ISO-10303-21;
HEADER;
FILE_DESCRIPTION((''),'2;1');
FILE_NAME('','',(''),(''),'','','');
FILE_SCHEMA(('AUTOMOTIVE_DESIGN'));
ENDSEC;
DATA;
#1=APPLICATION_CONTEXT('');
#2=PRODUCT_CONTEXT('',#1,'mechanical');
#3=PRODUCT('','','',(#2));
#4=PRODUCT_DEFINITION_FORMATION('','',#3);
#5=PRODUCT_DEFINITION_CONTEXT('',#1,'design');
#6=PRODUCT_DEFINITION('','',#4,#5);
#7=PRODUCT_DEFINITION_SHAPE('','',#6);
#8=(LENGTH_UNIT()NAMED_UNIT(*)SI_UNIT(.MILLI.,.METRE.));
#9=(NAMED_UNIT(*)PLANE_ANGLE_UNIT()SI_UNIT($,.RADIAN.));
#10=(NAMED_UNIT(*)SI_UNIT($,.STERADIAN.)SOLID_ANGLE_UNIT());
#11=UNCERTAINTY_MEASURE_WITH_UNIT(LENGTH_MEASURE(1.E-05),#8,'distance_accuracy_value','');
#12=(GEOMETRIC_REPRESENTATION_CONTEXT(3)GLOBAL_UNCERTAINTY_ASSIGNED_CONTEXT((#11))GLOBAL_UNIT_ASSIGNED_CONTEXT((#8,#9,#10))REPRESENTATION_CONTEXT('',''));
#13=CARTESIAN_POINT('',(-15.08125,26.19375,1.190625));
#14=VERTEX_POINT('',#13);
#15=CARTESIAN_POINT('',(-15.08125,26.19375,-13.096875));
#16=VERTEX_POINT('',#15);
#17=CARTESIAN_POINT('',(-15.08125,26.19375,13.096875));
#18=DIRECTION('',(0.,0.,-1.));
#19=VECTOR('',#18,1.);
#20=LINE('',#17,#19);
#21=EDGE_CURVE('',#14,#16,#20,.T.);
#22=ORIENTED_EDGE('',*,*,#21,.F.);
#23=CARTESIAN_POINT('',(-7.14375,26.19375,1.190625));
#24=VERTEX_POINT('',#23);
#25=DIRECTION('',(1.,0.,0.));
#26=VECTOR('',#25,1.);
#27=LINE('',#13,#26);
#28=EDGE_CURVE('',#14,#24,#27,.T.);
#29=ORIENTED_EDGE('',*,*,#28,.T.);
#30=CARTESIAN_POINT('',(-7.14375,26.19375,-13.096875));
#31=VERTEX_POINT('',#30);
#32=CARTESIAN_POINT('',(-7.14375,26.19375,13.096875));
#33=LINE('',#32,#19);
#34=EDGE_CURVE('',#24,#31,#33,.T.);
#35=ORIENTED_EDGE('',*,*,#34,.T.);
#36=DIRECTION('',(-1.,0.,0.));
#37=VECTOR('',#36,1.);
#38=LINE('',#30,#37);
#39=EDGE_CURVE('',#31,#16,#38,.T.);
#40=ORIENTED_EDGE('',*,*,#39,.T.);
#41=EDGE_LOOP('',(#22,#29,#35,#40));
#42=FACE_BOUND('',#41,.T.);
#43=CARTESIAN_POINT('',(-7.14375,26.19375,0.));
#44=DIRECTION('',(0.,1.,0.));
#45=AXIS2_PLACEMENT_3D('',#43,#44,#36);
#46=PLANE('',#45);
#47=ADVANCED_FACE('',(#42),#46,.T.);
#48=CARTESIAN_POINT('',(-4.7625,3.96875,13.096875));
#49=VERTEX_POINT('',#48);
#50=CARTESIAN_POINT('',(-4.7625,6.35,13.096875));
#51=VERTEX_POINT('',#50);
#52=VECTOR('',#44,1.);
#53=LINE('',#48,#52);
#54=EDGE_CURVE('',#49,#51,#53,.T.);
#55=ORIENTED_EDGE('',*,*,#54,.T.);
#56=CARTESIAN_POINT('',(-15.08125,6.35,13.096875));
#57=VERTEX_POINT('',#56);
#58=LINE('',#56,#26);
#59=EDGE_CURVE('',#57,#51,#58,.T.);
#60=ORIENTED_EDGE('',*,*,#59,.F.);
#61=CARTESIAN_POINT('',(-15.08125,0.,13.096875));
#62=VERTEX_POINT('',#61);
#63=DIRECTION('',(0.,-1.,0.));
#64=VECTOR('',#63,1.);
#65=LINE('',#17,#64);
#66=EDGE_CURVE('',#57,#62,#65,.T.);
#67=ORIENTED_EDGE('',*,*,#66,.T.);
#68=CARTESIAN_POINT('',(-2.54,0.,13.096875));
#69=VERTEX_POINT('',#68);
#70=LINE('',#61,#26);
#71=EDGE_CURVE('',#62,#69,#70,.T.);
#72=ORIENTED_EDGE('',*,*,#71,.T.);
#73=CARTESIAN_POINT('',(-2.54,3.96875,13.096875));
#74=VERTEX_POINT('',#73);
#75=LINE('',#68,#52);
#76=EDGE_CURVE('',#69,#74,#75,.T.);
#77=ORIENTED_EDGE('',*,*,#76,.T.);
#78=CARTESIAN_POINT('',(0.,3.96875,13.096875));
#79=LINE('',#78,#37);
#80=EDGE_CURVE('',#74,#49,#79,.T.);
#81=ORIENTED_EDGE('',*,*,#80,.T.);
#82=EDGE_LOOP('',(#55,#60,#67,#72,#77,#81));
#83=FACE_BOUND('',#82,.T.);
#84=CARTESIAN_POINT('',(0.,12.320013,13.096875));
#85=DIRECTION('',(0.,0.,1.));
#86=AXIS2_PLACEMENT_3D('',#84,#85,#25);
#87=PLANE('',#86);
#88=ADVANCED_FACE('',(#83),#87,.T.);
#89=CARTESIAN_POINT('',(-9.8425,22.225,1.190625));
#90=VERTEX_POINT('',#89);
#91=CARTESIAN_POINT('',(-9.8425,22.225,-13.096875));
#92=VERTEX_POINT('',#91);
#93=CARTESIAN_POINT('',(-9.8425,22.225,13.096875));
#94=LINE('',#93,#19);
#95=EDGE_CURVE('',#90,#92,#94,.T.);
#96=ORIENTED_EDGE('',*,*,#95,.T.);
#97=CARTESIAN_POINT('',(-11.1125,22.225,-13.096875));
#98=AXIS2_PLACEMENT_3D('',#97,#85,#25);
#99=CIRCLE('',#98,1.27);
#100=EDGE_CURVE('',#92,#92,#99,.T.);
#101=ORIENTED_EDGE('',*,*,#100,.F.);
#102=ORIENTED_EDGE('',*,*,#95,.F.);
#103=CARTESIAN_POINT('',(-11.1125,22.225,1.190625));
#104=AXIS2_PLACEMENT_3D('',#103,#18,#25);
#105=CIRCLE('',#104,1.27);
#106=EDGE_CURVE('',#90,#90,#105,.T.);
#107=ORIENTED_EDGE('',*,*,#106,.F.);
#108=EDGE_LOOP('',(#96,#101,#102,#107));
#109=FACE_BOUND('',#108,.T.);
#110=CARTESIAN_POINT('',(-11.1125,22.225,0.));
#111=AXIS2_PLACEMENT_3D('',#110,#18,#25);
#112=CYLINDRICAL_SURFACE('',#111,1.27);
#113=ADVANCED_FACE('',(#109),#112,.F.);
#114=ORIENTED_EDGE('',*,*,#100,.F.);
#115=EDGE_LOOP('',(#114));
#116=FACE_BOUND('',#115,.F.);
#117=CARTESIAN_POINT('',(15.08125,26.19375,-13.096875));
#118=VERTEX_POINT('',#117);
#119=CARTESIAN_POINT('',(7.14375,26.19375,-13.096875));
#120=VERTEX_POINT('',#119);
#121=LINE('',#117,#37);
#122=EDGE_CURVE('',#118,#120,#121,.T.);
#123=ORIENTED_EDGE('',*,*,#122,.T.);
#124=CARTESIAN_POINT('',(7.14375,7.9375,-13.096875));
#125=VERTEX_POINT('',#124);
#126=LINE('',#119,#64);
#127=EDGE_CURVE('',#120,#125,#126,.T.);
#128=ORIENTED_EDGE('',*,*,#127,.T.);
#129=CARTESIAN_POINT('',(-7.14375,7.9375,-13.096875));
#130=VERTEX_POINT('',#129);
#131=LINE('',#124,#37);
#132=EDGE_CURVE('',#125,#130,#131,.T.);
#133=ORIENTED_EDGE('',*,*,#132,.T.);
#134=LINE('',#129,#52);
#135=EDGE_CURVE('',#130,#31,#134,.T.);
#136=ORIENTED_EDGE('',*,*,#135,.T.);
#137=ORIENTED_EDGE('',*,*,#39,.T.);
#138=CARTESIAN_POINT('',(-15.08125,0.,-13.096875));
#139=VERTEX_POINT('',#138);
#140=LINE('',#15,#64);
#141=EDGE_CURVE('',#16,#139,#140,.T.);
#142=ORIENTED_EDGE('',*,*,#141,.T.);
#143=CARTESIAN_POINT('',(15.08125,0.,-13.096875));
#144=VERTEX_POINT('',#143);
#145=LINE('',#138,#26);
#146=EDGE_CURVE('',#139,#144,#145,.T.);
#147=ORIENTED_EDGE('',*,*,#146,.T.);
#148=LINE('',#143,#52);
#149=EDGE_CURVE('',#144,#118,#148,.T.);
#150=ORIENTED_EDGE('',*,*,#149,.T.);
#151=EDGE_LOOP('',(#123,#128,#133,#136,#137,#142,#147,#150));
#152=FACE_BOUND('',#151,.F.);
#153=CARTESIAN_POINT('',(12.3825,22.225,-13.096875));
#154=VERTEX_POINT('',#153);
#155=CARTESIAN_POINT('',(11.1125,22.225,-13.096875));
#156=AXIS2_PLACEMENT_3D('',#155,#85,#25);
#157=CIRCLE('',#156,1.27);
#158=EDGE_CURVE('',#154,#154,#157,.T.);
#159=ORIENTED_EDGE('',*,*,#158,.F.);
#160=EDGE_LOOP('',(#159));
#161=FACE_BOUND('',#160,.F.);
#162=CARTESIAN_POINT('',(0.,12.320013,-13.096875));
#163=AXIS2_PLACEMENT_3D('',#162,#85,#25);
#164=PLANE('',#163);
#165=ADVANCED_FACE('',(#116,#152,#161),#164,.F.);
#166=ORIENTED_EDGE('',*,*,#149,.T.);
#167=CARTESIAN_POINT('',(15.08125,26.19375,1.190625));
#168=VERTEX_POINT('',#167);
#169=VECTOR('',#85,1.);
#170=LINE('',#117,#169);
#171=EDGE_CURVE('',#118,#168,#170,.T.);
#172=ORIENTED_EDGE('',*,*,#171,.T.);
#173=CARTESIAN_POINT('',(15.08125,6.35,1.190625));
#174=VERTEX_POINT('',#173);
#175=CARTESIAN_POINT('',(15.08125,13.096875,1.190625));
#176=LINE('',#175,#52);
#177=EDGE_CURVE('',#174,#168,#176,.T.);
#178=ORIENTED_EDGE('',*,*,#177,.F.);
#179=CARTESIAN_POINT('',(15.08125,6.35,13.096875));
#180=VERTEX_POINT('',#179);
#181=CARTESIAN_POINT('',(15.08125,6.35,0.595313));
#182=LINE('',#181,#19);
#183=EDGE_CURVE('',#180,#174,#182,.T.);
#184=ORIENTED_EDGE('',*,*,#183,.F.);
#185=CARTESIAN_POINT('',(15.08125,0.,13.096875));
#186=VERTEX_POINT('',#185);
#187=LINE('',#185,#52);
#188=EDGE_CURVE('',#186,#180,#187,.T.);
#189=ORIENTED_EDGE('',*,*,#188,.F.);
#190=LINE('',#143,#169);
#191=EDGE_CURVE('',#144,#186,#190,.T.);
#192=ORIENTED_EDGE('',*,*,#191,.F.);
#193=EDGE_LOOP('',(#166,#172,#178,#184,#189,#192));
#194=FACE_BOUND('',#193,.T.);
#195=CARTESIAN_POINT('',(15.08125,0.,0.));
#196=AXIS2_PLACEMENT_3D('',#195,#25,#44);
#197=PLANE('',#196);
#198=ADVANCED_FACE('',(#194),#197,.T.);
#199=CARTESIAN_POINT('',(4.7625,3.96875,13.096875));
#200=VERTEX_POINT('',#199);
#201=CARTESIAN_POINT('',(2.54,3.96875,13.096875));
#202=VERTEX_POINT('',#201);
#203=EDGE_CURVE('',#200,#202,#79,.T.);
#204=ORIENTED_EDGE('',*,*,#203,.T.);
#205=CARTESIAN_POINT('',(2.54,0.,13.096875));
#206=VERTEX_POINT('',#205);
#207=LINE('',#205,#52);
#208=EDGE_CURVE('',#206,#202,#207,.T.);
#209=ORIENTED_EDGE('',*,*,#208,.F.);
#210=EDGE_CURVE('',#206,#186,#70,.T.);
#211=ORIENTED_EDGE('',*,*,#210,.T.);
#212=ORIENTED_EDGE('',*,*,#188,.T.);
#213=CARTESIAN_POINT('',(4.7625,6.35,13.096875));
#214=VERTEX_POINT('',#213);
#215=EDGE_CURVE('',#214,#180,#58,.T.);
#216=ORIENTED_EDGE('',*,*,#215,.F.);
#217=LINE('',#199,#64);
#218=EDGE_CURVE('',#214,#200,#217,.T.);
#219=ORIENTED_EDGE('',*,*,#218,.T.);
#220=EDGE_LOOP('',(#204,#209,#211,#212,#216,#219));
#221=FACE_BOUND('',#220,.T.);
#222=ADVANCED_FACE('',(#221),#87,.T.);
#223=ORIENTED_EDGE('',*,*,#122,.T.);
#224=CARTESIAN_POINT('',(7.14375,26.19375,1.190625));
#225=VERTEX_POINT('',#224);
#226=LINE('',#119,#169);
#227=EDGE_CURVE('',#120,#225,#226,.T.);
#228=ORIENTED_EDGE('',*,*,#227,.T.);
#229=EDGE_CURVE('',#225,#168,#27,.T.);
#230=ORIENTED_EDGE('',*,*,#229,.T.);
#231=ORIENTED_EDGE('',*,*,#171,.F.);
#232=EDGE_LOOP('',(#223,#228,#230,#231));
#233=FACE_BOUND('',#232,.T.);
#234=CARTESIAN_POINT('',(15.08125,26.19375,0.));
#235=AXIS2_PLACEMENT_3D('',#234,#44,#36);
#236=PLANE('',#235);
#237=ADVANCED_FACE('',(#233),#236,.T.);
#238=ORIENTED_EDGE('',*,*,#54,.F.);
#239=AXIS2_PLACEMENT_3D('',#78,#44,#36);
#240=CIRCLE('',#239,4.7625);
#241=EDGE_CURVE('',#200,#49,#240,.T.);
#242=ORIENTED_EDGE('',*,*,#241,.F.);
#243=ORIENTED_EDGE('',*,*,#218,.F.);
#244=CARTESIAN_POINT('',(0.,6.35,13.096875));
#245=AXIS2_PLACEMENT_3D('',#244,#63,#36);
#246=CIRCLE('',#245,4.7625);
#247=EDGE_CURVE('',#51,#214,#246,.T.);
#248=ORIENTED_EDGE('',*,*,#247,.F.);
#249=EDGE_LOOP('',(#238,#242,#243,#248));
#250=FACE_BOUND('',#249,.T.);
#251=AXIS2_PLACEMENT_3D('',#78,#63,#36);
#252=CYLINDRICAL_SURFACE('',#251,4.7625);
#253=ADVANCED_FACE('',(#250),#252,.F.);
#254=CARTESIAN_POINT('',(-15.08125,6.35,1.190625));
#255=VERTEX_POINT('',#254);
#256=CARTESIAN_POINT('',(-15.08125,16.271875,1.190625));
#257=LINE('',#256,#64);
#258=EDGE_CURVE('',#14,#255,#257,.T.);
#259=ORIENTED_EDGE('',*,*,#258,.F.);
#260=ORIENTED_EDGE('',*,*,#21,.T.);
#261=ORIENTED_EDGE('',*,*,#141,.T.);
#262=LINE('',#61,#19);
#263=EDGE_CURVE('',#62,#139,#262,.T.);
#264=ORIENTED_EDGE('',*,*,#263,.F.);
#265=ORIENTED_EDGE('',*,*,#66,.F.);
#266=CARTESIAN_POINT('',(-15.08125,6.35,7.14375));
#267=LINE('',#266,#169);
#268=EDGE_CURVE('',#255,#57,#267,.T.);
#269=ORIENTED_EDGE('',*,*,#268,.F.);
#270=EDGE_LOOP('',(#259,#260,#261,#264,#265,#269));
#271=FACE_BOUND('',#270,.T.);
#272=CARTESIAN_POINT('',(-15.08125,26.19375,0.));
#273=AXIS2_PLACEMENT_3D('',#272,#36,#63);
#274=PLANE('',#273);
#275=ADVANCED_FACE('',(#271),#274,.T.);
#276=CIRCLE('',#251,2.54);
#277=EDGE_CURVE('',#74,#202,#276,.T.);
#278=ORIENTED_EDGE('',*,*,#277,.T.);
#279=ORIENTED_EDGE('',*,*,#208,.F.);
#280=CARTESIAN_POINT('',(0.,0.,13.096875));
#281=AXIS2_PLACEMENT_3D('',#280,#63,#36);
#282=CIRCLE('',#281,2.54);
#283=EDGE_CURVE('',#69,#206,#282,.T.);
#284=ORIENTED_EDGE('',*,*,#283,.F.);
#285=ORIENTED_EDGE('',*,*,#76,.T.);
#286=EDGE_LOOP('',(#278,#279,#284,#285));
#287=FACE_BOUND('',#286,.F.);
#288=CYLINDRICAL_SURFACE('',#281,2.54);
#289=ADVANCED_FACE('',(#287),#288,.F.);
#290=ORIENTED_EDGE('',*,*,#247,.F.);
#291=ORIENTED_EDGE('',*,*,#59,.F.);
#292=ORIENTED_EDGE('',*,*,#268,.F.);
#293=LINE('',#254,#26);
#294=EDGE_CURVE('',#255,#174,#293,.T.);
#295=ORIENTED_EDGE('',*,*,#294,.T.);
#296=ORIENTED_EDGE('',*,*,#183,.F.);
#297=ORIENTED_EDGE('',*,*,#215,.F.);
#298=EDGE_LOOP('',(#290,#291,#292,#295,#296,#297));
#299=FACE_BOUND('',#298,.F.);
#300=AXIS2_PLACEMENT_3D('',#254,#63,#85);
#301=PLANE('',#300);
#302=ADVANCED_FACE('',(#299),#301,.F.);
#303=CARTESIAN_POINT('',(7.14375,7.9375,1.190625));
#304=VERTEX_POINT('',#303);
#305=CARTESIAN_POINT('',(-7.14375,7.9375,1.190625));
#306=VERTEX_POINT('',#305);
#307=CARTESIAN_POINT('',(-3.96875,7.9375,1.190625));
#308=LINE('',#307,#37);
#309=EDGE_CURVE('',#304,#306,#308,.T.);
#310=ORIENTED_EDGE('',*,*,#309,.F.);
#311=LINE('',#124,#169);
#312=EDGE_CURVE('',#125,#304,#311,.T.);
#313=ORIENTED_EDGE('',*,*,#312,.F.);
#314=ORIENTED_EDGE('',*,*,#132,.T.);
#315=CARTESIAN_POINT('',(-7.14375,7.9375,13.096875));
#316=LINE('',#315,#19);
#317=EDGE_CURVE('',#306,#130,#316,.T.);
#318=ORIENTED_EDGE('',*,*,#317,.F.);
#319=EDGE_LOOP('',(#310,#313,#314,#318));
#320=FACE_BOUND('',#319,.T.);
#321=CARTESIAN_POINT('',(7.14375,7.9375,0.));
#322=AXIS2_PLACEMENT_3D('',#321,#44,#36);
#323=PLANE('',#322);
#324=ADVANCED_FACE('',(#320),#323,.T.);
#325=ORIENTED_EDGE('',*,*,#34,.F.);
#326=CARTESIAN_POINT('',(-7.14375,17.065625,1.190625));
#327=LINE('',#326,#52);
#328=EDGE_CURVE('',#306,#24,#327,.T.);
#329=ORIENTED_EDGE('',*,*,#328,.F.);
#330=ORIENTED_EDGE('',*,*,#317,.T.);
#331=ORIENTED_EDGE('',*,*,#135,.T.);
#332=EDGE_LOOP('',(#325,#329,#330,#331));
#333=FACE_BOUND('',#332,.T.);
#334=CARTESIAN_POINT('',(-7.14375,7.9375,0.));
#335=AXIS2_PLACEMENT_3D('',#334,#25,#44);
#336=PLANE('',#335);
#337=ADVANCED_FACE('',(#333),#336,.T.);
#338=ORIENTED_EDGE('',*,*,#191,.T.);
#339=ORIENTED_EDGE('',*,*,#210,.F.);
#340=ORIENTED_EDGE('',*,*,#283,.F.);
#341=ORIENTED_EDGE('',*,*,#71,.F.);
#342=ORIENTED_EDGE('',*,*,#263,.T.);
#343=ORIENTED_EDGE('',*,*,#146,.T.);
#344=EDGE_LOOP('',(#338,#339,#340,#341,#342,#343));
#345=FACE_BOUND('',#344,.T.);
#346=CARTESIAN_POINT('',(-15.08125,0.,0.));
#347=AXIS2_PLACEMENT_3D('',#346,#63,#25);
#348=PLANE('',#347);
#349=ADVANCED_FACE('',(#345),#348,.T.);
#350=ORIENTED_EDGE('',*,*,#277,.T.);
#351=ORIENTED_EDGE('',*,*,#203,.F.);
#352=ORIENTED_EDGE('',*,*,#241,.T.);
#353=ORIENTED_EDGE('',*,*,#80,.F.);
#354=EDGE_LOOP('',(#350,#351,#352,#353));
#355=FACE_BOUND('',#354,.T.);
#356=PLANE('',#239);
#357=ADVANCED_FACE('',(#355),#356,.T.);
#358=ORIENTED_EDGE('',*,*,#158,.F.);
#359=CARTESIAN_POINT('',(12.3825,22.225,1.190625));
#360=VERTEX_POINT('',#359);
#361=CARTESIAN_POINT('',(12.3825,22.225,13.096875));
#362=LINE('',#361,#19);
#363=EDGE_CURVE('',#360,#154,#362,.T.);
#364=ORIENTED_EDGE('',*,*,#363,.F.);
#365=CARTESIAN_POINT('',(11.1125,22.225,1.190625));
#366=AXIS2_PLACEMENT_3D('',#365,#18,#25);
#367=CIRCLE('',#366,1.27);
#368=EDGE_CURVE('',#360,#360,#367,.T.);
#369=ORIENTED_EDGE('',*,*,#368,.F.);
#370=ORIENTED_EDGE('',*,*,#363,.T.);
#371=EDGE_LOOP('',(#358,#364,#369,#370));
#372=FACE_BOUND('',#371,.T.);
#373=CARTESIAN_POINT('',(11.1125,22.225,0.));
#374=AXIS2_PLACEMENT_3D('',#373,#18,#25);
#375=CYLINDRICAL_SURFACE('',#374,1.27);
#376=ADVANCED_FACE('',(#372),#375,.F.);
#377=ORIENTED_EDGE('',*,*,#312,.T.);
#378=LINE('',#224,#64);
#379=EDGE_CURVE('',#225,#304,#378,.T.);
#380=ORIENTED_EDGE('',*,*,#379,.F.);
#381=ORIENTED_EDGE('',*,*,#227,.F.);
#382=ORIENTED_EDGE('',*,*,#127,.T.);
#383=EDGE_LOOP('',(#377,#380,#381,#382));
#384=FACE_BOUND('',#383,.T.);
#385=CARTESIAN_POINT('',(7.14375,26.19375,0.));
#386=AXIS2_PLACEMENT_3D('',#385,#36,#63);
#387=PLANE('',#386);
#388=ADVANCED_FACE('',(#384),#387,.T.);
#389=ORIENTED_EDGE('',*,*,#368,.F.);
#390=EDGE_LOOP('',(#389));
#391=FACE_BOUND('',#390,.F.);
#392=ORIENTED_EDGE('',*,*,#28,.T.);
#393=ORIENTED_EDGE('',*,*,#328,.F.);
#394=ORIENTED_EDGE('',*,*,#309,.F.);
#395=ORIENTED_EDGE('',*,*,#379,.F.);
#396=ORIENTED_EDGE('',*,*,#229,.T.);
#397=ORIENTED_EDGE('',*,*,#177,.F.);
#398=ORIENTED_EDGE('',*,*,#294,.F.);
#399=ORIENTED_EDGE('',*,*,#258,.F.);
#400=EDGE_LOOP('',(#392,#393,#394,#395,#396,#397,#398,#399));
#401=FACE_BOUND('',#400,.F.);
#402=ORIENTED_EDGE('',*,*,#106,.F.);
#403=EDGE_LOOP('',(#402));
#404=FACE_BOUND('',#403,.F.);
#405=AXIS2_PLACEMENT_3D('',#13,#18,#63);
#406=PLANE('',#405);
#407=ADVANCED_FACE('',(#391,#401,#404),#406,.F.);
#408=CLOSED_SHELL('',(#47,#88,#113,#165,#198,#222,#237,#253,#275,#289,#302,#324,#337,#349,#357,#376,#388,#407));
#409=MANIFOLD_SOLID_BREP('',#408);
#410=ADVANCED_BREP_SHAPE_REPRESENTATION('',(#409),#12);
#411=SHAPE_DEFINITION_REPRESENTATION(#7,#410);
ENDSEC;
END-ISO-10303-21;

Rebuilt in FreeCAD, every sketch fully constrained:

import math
import FreeCAD as App
import Part
import Sketcher
from FreeCAD import Vector
Q = App.Units.Quantity


def add_polygon(sketch, points):
    """Adds a closed chain of lines whose ends are joined by coincident constraints."""
    first, n = sketch.GeometryCount, len(points)
    for a, b in zip(points, points[1:] + points[:1]):
        sketch.addGeometry(Part.LineSegment(App.Vector(*a, 0), App.Vector(*b, 0)), False)
    for i in range(n):
        sketch.addConstraint(Sketcher.Constraint("Coincident", first + i, 2, first + (i + 1) % n, 1))

doc = App.newDocument("Part")
body = doc.addObject("PartDesign::Body", "Body")

# Sketch on XY plane
sketch1 = body.newObject("Sketcher::SketchObject", "Sketch")
sketch1.AttachmentSupport = (doc.getObject("XY_Plane"), [""])
sketch1.MapMode = "FlatFace"
add_polygon(sketch1, [(-15.1, 0), (15.1, 0), (15.1, 26.2), (7.1, 26.2), (7.1, 7.9), (-7.1, 7.9), (-7.1, 26.2), (-15.1, 26.2)])  # lines 0-7
sketch1.addGeometry(Part.Circle(Vector(-11.1, 22.2, 0), Vector(0, 0, 1), 1.3), False)  # 8
sketch1.addGeometry(Part.Circle(Vector(11.1, 22.2, 0), Vector(0, 0, 1), 1.3), False)  # 9
sketch1.addConstraint([
    Sketcher.Constraint("Horizontal", 0),
    Sketcher.Constraint("Vertical", 1),
    Sketcher.Constraint("Horizontal", 2),
    Sketcher.Constraint("Vertical", 3),
    Sketcher.Constraint("Horizontal", 4),
    Sketcher.Constraint("Vertical", 5),
    Sketcher.Constraint("Horizontal", 6),
    Sketcher.Constraint("Vertical", 7),
    Sketcher.Constraint("Equal", 8, 9),
    Sketcher.Constraint("Symmetric", 0, 2, 7, 2, -1, 1),
    Sketcher.Constraint("Symmetric", 8, 3, 9, 3, -2),
    Sketcher.Constraint("Symmetric", 2, 2, 5, 2, -2),
    Sketcher.Constraint("Diameter", 8, Q("0.1 in")),
    Sketcher.Constraint("DistanceX", 0, 1, 0, 2, Q("1.1875 in")),
    Sketcher.Constraint("DistanceX", 2, 2, 2, 1, Q("0.3125 in")),
    Sketcher.Constraint("DistanceY", 1, 1, 1, 2, Q("1.03125 in")),
    Sketcher.Constraint("DistanceY", 3, 2, 3, 1, Q("0.71875 in")),
    Sketcher.Constraint("DistanceX", 8, 3, -1, 1, Q("0.4375 in")),
    Sketcher.Constraint("DistanceY", -1, 1, 8, 3, Q("0.875 in")),
])
pad1 = body.newObject("PartDesign::Pad", "Pad")
pad1.Profile = sketch1
pad1.Length = Q("1.03125 in")
pad1.Midplane = True

# Sketch on YZ plane
sketch2 = body.newObject("Sketcher::SketchObject", "Sketch001")
sketch2.AttachmentSupport = (doc.getObject("YZ_Plane"), [""])
sketch2.MapMode = "FlatFace"
sketch2.AttachmentOffset = App.Placement(Vector(0, 0, -0.59375 * 25.4), App.Rotation())
add_polygon(sketch2, [(26, 13), (26, 1), (6, 1), (6, 13)])  # lines 0-3
sketch2.addConstraint([
    Sketcher.Constraint("Vertical", 0),
    Sketcher.Constraint("Horizontal", 1),
    Sketcher.Constraint("Vertical", 2),
    Sketcher.Constraint("Horizontal", 3),
    Sketcher.Constraint("DistanceX", 1, 2, 1, 1, Q("0.78125 in")),
    Sketcher.Constraint("DistanceY", 0, 2, 0, 1, Q("0.46875 in")),
    Sketcher.Constraint("DistanceX", -1, 1, 1, 2, Q("0.25 in")),
    Sketcher.Constraint("DistanceY", -1, 1, 0, 2, Q("0.046875 in")),
])
pocket1 = body.newObject("PartDesign::Pocket", "Pocket")
pocket1.Profile = sketch2
pocket1.Type = "ThroughAll"
pocket1.Reversed = True

# Sketch on XZ plane
sketch3 = body.newObject("Sketcher::SketchObject", "Sketch002")
sketch3.AttachmentSupport = (doc.getObject("XZ_Plane"), [""])
sketch3.MapMode = "FlatFace"
sketch3.addGeometry([
    Part.ArcOfCircle(Part.Circle(Vector(0, 13.1, 0), Vector(0, 0, 1), 2.5), math.radians(180), math.radians(360)),
    Part.LineSegment(Vector(2.5, 13.1, 0), Vector(-2.5, 13.1, 0)),
], False)
sketch3.addConstraint([
    Sketcher.Constraint("Coincident", 0, 1, 1, 2),
    Sketcher.Constraint("Coincident", 1, 1, 0, 2),
    Sketcher.Constraint("Horizontal", 1),
    Sketcher.Constraint("PointOnObject", 0, 3, -2),
    Sketcher.Constraint("Radius", 0, Q("0.1 in")),
    Sketcher.Constraint("DistanceY", -1, 1, 0, 3, Q("0.515625 in")),
    Sketcher.Constraint("DistanceY", -1, 1, 0, 1, Q("0.515625 in")),
])
pocket2 = body.newObject("PartDesign::Pocket", "Pocket001")
pocket2.Profile = sketch3
pocket2.Type = "ThroughAll"

# Sketch on XZ plane
sketch4 = body.newObject("Sketcher::SketchObject", "Sketch003")
sketch4.AttachmentSupport = (doc.getObject("XZ_Plane"), [""])
sketch4.MapMode = "FlatFace"
sketch4.AttachmentOffset = App.Placement(Vector(0, 0, -0.15625 * 25.4), App.Rotation())
sketch4.addGeometry(Part.Circle(Vector(0, 13.1, 0), Vector(0, 0, 1), 4.8), False)
sketch4.addConstraint([
    Sketcher.Constraint("PointOnObject", 0, 3, -2),
    Sketcher.Constraint("Diameter", 0, Q("0.375 in")),
    Sketcher.Constraint("DistanceY", -1, 1, 0, 3, Q("0.515625 in")),
])
pocket3 = body.newObject("PartDesign::Pocket", "Pocket002")
pocket3.Profile = sketch4
pocket3.Type = "ThroughAll"

doc.recompute()
